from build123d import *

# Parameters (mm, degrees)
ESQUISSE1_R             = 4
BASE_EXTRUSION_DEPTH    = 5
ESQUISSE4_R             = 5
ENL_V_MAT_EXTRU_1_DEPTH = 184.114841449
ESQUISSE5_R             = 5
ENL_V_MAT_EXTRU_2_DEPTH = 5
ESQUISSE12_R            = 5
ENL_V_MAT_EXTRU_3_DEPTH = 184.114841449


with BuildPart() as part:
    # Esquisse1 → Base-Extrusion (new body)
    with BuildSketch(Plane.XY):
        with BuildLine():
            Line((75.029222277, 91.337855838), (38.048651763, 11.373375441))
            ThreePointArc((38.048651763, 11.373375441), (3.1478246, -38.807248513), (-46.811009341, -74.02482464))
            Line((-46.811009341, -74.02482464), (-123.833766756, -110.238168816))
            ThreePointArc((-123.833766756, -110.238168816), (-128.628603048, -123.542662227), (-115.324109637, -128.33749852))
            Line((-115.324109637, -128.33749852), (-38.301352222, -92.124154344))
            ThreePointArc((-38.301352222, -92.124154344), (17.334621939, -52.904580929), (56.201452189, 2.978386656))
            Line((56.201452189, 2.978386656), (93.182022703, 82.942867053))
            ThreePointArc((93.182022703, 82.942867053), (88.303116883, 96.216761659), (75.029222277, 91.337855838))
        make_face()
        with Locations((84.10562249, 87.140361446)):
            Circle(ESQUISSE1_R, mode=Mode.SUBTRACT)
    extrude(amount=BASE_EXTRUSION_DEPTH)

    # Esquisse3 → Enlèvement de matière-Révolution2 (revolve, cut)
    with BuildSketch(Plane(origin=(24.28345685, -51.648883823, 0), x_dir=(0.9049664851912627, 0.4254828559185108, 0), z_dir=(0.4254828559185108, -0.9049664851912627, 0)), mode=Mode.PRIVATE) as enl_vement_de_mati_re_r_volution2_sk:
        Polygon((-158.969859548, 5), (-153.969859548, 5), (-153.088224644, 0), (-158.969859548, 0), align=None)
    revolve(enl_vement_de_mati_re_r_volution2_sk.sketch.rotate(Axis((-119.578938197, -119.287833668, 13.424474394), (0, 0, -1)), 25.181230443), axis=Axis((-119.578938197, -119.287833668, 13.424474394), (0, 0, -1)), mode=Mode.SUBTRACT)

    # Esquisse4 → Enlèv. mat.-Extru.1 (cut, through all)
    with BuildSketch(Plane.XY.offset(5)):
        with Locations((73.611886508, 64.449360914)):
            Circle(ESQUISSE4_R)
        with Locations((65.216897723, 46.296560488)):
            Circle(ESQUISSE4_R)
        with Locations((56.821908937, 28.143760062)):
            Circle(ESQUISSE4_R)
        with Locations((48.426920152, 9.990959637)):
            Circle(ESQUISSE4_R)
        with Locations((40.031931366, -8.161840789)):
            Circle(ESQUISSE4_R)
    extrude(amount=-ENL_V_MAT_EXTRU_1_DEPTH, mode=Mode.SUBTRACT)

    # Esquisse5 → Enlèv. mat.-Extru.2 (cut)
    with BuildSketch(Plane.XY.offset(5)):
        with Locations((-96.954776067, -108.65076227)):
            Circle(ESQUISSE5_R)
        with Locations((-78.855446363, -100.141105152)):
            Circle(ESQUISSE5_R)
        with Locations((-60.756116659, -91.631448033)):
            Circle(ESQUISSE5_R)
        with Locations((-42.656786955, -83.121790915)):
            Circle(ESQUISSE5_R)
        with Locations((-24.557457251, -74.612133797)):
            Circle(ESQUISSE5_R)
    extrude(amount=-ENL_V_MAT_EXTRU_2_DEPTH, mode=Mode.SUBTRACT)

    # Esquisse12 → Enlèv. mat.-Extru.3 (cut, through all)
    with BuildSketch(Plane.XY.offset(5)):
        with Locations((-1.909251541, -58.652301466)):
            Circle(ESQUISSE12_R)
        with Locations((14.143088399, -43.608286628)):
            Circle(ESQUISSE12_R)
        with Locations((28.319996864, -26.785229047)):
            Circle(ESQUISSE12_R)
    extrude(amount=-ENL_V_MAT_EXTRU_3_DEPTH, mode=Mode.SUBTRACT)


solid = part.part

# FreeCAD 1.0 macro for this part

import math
import FreeCAD as App
import Part
import Sketcher
from FreeCAD import Vector
Q = App.Units.Quantity


def add_polygon(sketch, points):
    """Adds a closed chain of lines whose ends are joined by coincident constraints."""
    first, n = sketch.GeometryCount, len(points)
    for a, b in zip(points, points[1:] + points[:1]):
        sketch.addGeometry(Part.LineSegment(App.Vector(*a, 0), App.Vector(*b, 0)), False)
    for i in range(n):
        sketch.addConstraint(Sketcher.Constraint("Coincident", first + i, 2, first + (i + 1) % n, 1))

doc = App.newDocument("Part")
body = doc.addObject("PartDesign::Body", "Body")

# Sketch on XY plane
sketch1 = body.newObject("Sketcher::SketchObject", "Sketch")
sketch1.AttachmentSupport = (doc.getObject("XY_Plane"), [""])
sketch1.MapMode = "FlatFace"
sketch1.addGeometry([
    Part.LineSegment(Vector(75.029222, 91.337856, 0), Vector(38.048652, 11.373375, 0)),  # 0
    Part.ArcOfCircle(Part.Circle(Vector(-121.695992, 85.249277, 0), Vector(0, 0, 1), 176), math.radians(-64.81877), math.radians(-24.81877)),  # 1
    Part.LineSegment(Vector(-46.811009, -74.024825, 0), Vector(-123.833767, -110.238169, 0)),  # 2
    Part.ArcOfCircle(Part.Circle(Vector(-119.578938, -119.287834, 0), Vector(0, 0, 1), 10), math.radians(115.18123), math.radians(295.18123)),  # 3
    Part.LineSegment(Vector(-115.32411, -128.337499, 0), Vector(-38.301352, -92.124154, 0)),  # 4
    Part.ArcOfCircle(Part.Circle(Vector(-121.695992, 85.249277, 0), Vector(0, 0, 1), 196), math.radians(-64.81877), math.radians(-24.81877)),  # 5
    Part.LineSegment(Vector(56.201452, 2.978387, 0), Vector(93.182023, 82.942867, 0)),  # 6
    Part.ArcOfCircle(Part.Circle(Vector(84.105622, 87.140361, 0), Vector(0, 0, 1), 10), math.radians(-24.81877), math.radians(155.18123)),  # 7
    Part.Circle(Vector(84.105622, 87.140361, 0), Vector(0, 0, 1), 4),  # 8
], False)
sketch1.addConstraint([
    Sketcher.Constraint("Tangent", 0, 2, 1, 2),
    Sketcher.Constraint("Tangent", 1, 1, 2, 1),
    Sketcher.Constraint("Tangent", 2, 2, 3, 1),
    Sketcher.Constraint("Tangent", 3, 2, 4, 1),
    Sketcher.Constraint("Tangent", 4, 2, 5, 1),
    Sketcher.Constraint("Tangent", 5, 2, 6, 1),
    Sketcher.Constraint("Tangent", 6, 2, 7, 1),
    Sketcher.Constraint("Tangent", 7, 2, 0, 1),
    Sketcher.Constraint("Coincident", 5, 3, 1, 3),
    Sketcher.Constraint("Coincident", 8, 3, 7, 3),
    Sketcher.Constraint("Equal", 3, 7),
    Sketcher.Constraint("Parallel", 2, 4),
    Sketcher.Constraint("Diameter", 8, Q("8 mm")),
    Sketcher.Constraint("Radius", 1, Q("176 mm")),
    Sketcher.Constraint("Radius", 3, Q("10 mm")),
    Sketcher.Constraint("DistanceY", 3, 2, -1, 1, Q("128.337499 mm")),
    Sketcher.Constraint("DistanceY", 0, 2, 1, 3, Q("73.875901 mm")),
    Sketcher.Constraint("DistanceY", 1, 1, 0, 2, Q("85.3982 mm")),
    Sketcher.Constraint("DistanceX", 3, 2, 1, 1, Q("68.5131 mm")),
    Sketcher.Constraint("DistanceX", 1, 3, -1, 1, Q("121.695992 mm")),
    Sketcher.Constraint("DistanceY", -1, 1, 7, 3, Q("87.140361 mm")),
])
pad1 = body.newObject("PartDesign::Pad", "Pad")
pad1.Profile = sketch1
pad1.Length = 5

# Sketch on an angled plane
sketch2 = body.newObject("Sketcher::SketchObject", "Sketch001")
sketch2.Placement = App.Placement(Vector(24.283457, -51.648884, 0), App.Rotation(Vector(0.904966485, 0.425482856, 0), Vector(0, 0, 1), Vector(0.425482856, -0.904966485, 0), "ZXY"))
add_polygon(sketch2, [(-153.96986, 5), (-158.96986, 5), (-158.96986, 0), (-153.088225, 0)])  # lines 0-3
sketch2.addGeometry(Part.LineSegment(Vector(-158.96986, 5, 0), Vector(-158.96986, 0, 0)), True)  # axis
sketch2.addConstraint([
    Sketcher.Constraint("Horizontal", 0),
    Sketcher.Constraint("Vertical", 1),
    Sketcher.Constraint("Horizontal", 2),
    Sketcher.Constraint("Vertical", 4),
    Sketcher.Constraint("Coincident", 4, 1, 0, 2),
    Sketcher.Constraint("PointOnObject", 1, 2, -1),
    Sketcher.Constraint("PointOnObject", 4, 2, -1),
    Sketcher.Constraint("Equal", 0, 1),
    Sketcher.Constraint("DistanceX", 0, 2, 0, 1, Q("5 mm")),
    Sketcher.Constraint("Angle", 3, Q("100 deg")),
    Sketcher.Constraint("DistanceX", 0, 2, -1, 1, Q("158.96986 mm")),
])
groove = body.newObject("PartDesign::Groove", "Groove")
groove.Profile = sketch2
groove.ReferenceAxis = (sketch2, ["Axis0"])
groove.Angle = 360

# Sketch on XY plane
sketch3 = body.newObject("Sketcher::SketchObject", "Sketch002")
sketch3.AttachmentSupport = (doc.getObject("XY_Plane"), [""])
sketch3.MapMode = "FlatFace"
sketch3.AttachmentOffset = App.Placement(Vector(0, 0, 5), App.Rotation())
sketch3.addGeometry([
    Part.Circle(Vector(73.611887, 64.449361, 0), Vector(0, 0, 1), 5),  # 0
    Part.Circle(Vector(65.216898, 46.29656, 0), Vector(0, 0, 1), 5),  # 1
    Part.Circle(Vector(56.821909, 28.14376, 0), Vector(0, 0, 1), 5),  # 2
    Part.Circle(Vector(48.42692, 9.99096, 0), Vector(0, 0, 1), 5),  # 3
    Part.Circle(Vector(40.031931, -8.161841, 0), Vector(0, 0, 1), 5),  # 4
], False)
sketch3.addConstraint([
    Sketcher.Constraint("Equal", 0, 1),
    Sketcher.Constraint("Equal", 1, 2),
    Sketcher.Constraint("Equal", 2, 3),
    Sketcher.Constraint("Equal", 3, 4),
    Sketcher.Constraint("Diameter", 0, Q("10 mm")),
    Sketcher.Constraint("DistanceY", 1, 3, 0, 3, Q("18.1528 mm")),
    Sketcher.Constraint("DistanceY", 2, 3, 1, 3, Q("18.1528 mm")),
    Sketcher.Constraint("DistanceY", 3, 3, 2, 3, Q("18.1528 mm")),
    Sketcher.Constraint("DistanceY", 4, 3, 3, 3, Q("18.1528 mm")),
    Sketcher.Constraint("DistanceY", -1, 1, 0, 3, Q("64.449361 mm")),
    Sketcher.Constraint("DistanceX", -1, 1, 2, 3, Q("56.821909 mm")),
    Sketcher.Constraint("DistanceX", -1, 1, 3, 3, Q("48.42692 mm")),
    Sketcher.Constraint("DistanceX", -1, 1, 4, 3, Q("40.031931 mm")),
    Sketcher.Constraint("DistanceX", 1, 3, 0, 3, Q("8.394989 mm")),
    Sketcher.Constraint("DistanceX", 2, 3, 1, 3, Q("8.394989 mm")),
])
pocket1 = body.newObject("PartDesign::Pocket", "Pocket")
pocket1.Profile = sketch3
pocket1.Type = "ThroughAll"

# Sketch on XY plane
sketch4 = body.newObject("Sketcher::SketchObject", "Sketch003")
sketch4.AttachmentSupport = (doc.getObject("XY_Plane"), [""])
sketch4.MapMode = "FlatFace"
sketch4.AttachmentOffset = App.Placement(Vector(0, 0, 5), App.Rotation())
sketch4.addGeometry([
    Part.Circle(Vector(-96.954776, -108.650762, 0), Vector(0, 0, 1), 5),  # 0
    Part.Circle(Vector(-78.855446, -100.141105, 0), Vector(0, 0, 1), 5),  # 1
    Part.Circle(Vector(-60.756117, -91.631448, 0), Vector(0, 0, 1), 5),  # 2
    Part.Circle(Vector(-42.656787, -83.121791, 0), Vector(0, 0, 1), 5),  # 3
    Part.Circle(Vector(-24.557457, -74.612134, 0), Vector(0, 0, 1), 5),  # 4
], False)
sketch4.addConstraint([
    Sketcher.Constraint("Equal", 0, 1),
    Sketcher.Constraint("Equal", 1, 2),
    Sketcher.Constraint("Equal", 2, 3),
    Sketcher.Constraint("Equal", 3, 4),
    Sketcher.Constraint("Diameter", 0, Q("10 mm")),
    Sketcher.Constraint("DistanceY", 2, 3, -1, 1, Q("91.631448 mm")),
    Sketcher.Constraint("DistanceY", 3, 3, -1, 1, Q("83.121791 mm")),
    Sketcher.Constraint("DistanceX", 0, 3, 1, 3, Q("18.09933 mm")),
    Sketcher.Constraint("DistanceX", 1, 3, 2, 3, Q("18.09933 mm")),
    Sketcher.Constraint("DistanceX", 2, 3, 3, 3, Q("18.09933 mm")),
    Sketcher.Constraint("DistanceY", 0, 3, 3, 3, Q("25.528971 mm")),
    Sketcher.Constraint("DistanceX", 3, 3, 4, 3, Q("18.09933 mm")),
    Sketcher.Constraint("DistanceY", 1, 3, 4, 3, Q("25.528971 mm")),
    Sketcher.Constraint("DistanceY", 0, 3, 4, 3, Q("34.038628 mm")),
    Sketcher.Constraint("DistanceX", 0, 3, -1, 1, Q("96.954776 mm")),
])
pocket2 = body.newObject("PartDesign::Pocket", "Pocket001")
pocket2.Profile = sketch4
pocket2.Length = 5

# Sketch on XY plane
sketch5 = body.newObject("Sketcher::SketchObject", "Sketch004")
sketch5.AttachmentSupport = (doc.getObject("XY_Plane"), [""])
sketch5.MapMode = "FlatFace"
sketch5.AttachmentOffset = App.Placement(Vector(0, 0, 5), App.Rotation())
sketch5.addGeometry([
    Part.Circle(Vector(-1.909252, -58.652301, 0), Vector(0, 0, 1), 5),
    Part.Circle(Vector(14.143088, -43.608287, 0), Vector(0, 0, 1), 5),
    Part.Circle(Vector(28.319997, -26.785229, 0), Vector(0, 0, 1), 5),
], False)
sketch5.addConstraint([
    Sketcher.Constraint("Equal", 0, 1),
    Sketcher.Constraint("Equal", 1, 2),
    Sketcher.Constraint("Diameter", 0, Q("10 mm")),
    Sketcher.Constraint("DistanceY", 0, 3, -1, 1, Q("58.652301 mm")),
    Sketcher.Constraint("DistanceX", 0, 3, -1, 1, Q("1.909252 mm")),
    Sketcher.Constraint("DistanceX", -1, 1, 1, 3, Q("14.143088 mm")),
    Sketcher.Constraint("DistanceY", 2, 3, -1, 1, Q("26.785229 mm")),
    Sketcher.Constraint("DistanceX", 1, 3, 2, 3, Q("14.176908 mm")),
    Sketcher.Constraint("DistanceY", 1, 3, -1, 1, Q("43.608287 mm")),
])
pocket3 = body.newObject("PartDesign::Pocket", "Pocket002")
pocket3.Profile = sketch5
pocket3.Type = "ThroughAll"

doc.recompute()
